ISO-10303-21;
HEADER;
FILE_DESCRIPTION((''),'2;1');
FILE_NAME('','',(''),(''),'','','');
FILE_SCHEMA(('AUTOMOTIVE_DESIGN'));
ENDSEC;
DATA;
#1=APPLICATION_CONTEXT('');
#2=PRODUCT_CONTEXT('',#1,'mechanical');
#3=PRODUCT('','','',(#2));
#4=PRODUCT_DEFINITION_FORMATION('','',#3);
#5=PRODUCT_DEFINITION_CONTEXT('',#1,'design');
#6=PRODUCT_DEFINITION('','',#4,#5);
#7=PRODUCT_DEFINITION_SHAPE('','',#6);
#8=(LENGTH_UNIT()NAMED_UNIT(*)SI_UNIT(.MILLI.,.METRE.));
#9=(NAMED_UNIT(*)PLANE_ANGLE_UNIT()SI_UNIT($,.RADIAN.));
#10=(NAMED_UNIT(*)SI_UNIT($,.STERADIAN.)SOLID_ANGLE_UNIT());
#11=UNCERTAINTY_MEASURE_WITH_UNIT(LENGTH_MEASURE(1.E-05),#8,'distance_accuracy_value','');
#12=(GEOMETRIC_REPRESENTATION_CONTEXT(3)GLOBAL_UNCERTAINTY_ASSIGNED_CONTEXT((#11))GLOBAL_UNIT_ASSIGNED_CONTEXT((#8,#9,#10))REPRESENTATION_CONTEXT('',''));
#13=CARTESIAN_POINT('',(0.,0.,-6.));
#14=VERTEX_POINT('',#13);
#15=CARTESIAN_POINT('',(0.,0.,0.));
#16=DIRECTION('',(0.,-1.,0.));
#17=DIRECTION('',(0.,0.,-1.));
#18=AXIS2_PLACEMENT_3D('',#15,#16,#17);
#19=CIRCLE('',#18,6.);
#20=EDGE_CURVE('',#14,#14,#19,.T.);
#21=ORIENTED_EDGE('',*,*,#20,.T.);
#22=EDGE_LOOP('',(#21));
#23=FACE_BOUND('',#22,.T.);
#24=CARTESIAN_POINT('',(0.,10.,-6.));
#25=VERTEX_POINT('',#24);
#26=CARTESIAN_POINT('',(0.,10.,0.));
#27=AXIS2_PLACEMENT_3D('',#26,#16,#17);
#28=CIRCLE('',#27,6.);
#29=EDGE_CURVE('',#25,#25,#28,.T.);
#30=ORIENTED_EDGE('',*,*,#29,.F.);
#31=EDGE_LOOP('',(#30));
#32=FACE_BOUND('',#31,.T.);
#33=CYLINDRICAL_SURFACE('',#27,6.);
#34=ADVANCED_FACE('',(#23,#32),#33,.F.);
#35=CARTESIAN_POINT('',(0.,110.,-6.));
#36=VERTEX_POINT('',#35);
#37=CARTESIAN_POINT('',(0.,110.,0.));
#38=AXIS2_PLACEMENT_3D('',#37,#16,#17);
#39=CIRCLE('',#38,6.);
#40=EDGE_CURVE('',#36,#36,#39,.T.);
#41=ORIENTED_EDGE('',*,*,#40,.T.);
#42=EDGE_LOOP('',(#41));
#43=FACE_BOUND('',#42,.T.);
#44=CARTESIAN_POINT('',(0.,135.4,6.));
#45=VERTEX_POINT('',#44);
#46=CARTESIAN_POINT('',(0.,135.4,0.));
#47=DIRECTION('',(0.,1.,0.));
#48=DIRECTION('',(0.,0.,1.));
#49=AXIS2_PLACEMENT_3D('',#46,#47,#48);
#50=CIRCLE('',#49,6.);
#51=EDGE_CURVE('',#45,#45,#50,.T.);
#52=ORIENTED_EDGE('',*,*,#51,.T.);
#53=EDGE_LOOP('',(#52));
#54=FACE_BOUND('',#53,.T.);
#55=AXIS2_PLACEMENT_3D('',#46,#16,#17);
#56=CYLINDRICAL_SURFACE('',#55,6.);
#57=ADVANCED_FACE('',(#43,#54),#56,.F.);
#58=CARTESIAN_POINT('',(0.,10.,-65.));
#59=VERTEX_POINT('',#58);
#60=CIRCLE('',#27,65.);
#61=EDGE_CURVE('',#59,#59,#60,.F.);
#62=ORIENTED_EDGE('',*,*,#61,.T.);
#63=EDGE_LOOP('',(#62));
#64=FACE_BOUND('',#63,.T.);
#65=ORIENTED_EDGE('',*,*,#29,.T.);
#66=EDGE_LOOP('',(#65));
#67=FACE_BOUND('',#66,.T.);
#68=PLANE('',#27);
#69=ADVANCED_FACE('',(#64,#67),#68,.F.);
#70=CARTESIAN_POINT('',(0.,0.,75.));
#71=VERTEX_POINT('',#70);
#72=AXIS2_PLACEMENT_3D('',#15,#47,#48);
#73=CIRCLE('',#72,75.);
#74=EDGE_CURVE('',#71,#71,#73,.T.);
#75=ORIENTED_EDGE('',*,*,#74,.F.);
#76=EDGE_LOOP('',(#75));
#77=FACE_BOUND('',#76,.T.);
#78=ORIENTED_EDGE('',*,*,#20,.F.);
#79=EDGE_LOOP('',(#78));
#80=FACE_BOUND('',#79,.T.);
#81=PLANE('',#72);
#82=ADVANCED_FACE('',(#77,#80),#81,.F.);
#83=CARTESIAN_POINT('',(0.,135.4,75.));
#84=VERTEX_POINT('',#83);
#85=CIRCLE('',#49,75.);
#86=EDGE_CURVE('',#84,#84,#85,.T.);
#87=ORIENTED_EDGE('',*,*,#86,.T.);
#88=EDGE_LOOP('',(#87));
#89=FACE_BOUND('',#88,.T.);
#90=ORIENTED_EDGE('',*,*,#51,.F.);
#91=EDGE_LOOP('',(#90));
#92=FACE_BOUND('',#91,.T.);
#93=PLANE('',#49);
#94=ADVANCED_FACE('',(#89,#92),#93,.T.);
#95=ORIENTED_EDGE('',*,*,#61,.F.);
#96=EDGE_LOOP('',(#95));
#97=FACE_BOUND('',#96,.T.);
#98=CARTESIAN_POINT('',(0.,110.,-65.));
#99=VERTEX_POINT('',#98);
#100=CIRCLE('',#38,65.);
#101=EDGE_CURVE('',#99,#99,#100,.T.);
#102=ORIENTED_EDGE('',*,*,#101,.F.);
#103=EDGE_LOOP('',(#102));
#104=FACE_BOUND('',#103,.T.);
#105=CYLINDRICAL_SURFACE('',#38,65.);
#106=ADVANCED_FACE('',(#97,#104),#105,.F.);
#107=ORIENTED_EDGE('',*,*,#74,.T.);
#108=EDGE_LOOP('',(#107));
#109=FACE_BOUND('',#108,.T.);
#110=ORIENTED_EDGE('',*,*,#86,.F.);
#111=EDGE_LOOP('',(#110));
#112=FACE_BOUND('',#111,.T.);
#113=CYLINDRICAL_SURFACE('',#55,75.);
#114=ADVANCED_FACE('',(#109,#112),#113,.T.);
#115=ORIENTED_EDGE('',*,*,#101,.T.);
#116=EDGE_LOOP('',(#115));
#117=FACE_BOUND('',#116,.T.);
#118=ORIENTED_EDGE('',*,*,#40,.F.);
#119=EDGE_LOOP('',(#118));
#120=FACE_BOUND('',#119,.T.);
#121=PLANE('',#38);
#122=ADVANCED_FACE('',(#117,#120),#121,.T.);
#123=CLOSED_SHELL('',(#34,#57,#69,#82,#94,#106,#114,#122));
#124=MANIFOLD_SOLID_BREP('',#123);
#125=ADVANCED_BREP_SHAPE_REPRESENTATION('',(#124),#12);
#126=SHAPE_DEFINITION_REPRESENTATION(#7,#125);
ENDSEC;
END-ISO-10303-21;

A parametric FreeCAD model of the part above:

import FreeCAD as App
import Part
import Sketcher

V = App.Vector

doc = App.newDocument("Part")
body = doc.addObject("PartDesign::Body", "Body")

sketch1 = body.newObject("Sketcher::SketchObject", "Sketch")
sketch1.AttachmentSupport = (doc.getObject("XZ_Plane"), [""])
sketch1.MapMode = "FlatFace"
sketch1.addGeometry([
    Part.Circle(V(0, 0, 0), V(0, 0, 1), 75),
    Part.Circle(V(0, 0, 0), V(0, 0, 1), 6),
], False)
sketch1.addConstraint([
    Sketcher.Constraint("Coincident", 0, 3, -1, 1),
    Sketcher.Constraint("Coincident", 1, 3, -1, 1),
    Sketcher.Constraint("Diameter", 0, 150.0),
    Sketcher.Constraint("Diameter", 1, 12.0),
])
pad1 = body.newObject("PartDesign::Pad", "Pad")
pad1.Profile = sketch1
pad1.Length = 135.4
pad1.Reversed = True

sketch2 = body.newObject("Sketcher::SketchObject", "Sketch001")
sketch2.AttachmentSupport = (doc.getObject("XZ_Plane"), [""])
sketch2.MapMode = "FlatFace"
sketch2.addGeometry(Part.Circle(V(0, 0, 0), V(0, 0, 1), 65), False)
sketch2.addConstraint([
    Sketcher.Constraint("Coincident", 0, 3, -1, 1),
    Sketcher.Constraint("Diameter", 0, 130.0),
])
pocket1 = body.newObject("PartDesign::Pocket", "Pocket")
pocket1.Profile = sketch2
pocket1.Length = 110

sketch3 = body.newObject("Sketcher::SketchObject", "Sketch002")
sketch3.AttachmentSupport = (doc.getObject("XZ_Plane"), [""])
sketch3.MapMode = "FlatFace"
sketch3.addGeometry([
    Part.Circle(V(0, 0, 0), V(0, 0, 1), 75),
    Part.Circle(V(0, 0, 0), V(0, 0, 1), 6),
], False)
sketch3.addConstraint([
    Sketcher.Constraint("Coincident", 0, 3, -1, 1),
    Sketcher.Constraint("Coincident", 1, 3, -1, 1),
    Sketcher.Constraint("Diameter", 0, 150.0),
    Sketcher.Constraint("Diameter", 1, 12.0),
])
pad2 = body.newObject("PartDesign::Pad", "Pad001")
pad2.Profile = sketch3
pad2.Length = 10
pad2.Reversed = True

doc.recompute()
